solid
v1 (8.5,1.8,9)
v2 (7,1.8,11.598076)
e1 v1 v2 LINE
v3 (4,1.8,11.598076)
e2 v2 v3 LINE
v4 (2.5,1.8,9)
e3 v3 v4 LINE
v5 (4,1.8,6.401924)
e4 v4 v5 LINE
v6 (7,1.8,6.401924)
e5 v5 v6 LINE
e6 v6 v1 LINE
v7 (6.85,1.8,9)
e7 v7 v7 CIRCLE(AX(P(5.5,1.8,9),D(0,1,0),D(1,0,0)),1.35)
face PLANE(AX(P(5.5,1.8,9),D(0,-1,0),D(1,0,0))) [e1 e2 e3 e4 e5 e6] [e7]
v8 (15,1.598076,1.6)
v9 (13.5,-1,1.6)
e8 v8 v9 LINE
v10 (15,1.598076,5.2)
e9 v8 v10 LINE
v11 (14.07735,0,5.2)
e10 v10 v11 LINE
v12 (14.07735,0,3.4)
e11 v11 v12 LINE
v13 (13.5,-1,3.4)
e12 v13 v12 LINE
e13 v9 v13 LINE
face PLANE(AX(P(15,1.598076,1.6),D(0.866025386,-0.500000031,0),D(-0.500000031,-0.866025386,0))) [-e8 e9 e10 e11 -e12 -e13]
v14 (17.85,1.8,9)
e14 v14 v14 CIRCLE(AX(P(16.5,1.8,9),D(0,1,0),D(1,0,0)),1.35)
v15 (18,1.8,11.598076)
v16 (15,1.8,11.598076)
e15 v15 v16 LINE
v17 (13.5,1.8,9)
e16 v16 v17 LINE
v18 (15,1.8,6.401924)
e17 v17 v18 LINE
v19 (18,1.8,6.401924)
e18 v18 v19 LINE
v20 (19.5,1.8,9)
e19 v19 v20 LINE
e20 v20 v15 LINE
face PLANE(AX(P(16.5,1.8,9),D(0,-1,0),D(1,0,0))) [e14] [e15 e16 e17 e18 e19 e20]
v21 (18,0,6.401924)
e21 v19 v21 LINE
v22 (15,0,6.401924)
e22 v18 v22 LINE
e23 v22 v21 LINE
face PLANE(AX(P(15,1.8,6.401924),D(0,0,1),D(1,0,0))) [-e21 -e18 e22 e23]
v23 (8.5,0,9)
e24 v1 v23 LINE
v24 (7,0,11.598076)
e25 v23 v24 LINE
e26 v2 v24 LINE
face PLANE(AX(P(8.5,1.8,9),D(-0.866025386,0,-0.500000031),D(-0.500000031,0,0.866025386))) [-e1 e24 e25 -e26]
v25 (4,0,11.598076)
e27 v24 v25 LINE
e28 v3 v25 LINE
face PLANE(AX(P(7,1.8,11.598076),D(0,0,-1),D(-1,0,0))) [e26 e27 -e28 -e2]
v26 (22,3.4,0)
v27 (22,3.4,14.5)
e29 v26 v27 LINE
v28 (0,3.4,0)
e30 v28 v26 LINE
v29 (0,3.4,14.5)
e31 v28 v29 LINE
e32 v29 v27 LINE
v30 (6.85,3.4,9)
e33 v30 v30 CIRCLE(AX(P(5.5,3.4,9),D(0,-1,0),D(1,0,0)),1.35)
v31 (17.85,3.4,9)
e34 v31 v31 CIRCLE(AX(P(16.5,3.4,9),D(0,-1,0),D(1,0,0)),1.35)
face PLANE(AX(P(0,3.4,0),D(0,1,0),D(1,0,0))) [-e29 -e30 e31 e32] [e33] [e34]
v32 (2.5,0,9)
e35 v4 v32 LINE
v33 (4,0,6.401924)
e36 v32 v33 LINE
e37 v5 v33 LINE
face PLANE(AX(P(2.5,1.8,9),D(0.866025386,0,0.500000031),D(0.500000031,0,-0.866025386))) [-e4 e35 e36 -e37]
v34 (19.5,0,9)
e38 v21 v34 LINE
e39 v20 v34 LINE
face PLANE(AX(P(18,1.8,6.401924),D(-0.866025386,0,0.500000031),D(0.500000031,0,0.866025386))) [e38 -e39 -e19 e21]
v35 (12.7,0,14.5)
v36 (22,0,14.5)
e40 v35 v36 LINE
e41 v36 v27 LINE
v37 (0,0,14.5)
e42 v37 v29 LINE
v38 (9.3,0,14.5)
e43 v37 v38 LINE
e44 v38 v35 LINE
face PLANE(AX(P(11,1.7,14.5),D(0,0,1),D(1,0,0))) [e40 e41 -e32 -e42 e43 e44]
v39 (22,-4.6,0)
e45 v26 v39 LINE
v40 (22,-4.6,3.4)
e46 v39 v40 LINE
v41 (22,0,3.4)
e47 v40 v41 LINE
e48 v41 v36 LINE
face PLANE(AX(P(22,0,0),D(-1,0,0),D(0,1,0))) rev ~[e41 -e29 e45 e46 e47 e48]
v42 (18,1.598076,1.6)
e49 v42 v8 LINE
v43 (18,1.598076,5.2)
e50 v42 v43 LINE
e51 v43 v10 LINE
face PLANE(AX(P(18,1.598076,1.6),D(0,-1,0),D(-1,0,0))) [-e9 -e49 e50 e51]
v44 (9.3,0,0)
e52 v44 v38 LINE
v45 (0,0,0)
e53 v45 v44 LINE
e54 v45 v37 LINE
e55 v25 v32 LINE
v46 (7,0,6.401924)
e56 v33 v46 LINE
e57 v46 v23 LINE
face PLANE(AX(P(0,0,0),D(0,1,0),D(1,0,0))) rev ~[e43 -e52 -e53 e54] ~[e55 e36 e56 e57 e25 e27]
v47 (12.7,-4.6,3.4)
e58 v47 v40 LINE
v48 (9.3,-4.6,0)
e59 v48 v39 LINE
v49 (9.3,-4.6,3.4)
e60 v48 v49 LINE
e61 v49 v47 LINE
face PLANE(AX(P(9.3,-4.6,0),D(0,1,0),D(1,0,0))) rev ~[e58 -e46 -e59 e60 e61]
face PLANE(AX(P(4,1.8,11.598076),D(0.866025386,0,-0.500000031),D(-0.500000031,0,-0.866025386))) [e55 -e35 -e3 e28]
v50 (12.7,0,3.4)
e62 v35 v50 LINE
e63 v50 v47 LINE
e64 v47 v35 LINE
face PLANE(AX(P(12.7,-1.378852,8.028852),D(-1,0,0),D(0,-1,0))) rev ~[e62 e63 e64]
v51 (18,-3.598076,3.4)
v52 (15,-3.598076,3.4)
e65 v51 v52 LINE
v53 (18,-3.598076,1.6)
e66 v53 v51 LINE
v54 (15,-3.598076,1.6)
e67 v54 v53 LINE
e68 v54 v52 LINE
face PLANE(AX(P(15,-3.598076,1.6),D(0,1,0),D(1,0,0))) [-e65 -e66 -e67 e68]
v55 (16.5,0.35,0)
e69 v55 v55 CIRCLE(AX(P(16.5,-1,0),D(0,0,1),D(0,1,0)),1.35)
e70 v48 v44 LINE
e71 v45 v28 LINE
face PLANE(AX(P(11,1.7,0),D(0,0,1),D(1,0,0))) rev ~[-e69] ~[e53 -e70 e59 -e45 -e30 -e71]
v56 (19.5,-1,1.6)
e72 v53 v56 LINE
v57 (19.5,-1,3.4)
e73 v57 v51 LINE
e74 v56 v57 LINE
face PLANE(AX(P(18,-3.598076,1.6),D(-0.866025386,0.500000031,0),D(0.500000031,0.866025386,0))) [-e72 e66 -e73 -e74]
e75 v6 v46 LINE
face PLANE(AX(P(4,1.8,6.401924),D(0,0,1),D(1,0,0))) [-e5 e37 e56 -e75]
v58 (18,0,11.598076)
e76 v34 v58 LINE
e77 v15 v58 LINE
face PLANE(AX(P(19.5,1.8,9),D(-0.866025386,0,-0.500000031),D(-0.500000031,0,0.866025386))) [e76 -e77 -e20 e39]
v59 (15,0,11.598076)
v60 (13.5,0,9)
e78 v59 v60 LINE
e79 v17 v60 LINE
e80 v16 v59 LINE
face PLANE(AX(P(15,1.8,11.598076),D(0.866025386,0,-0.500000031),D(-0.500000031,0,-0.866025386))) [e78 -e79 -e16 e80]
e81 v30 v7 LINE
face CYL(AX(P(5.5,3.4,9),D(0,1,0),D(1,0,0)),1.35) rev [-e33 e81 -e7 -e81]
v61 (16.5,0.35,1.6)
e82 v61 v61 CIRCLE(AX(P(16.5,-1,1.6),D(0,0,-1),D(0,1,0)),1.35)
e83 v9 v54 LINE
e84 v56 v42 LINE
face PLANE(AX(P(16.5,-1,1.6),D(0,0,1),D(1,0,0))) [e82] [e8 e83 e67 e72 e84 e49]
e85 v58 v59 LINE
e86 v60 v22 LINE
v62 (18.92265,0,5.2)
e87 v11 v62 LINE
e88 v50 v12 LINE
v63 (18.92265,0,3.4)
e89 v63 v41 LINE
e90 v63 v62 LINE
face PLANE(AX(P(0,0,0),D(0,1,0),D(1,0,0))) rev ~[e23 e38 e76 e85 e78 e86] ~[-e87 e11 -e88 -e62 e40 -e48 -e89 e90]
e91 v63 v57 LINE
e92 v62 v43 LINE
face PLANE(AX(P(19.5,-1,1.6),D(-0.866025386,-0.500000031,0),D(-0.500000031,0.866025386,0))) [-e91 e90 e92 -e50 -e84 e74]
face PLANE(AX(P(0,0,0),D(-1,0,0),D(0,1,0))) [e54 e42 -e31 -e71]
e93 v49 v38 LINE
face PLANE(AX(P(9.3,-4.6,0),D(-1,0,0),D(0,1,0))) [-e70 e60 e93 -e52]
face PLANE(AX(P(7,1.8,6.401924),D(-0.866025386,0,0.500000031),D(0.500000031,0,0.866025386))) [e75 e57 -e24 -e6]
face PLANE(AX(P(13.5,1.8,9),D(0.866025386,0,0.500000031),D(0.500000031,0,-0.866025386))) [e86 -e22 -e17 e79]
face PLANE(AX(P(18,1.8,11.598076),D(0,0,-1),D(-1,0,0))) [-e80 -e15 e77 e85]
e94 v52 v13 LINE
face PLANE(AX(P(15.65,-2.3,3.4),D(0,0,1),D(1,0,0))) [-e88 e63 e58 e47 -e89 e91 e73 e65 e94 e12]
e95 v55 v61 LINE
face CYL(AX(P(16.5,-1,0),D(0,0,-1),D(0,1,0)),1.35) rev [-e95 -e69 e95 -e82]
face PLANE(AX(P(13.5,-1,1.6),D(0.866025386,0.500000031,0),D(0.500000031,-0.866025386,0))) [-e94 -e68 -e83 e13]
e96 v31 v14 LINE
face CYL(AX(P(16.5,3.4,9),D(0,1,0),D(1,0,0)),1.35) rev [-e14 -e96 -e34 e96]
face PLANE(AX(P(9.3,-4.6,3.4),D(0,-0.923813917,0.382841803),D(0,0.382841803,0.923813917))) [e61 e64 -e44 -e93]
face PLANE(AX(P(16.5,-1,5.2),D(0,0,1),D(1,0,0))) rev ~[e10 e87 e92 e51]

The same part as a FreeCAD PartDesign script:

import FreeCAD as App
import Part
import Sketcher
from FreeCAD import Vector
Q = App.Units.Quantity

doc = App.newDocument("Part")
body = doc.addObject("PartDesign::Body", "Body")

# Sketch on XY plane
sketch1 = body.newObject("Sketcher::SketchObject", "Sketch")
sketch1.AttachmentSupport = (doc.getObject("XY_Plane"), [""])
sketch1.MapMode = "FlatFace"
sketch1.AttachmentOffset = App.Placement(Vector(0, 0, 1.6), App.Rotation())
sketch1.addGeometry(Part.LineSegment(Vector(19.5, -1, 0), Vector(18, 1.6, 0)), False)
sketch1.addGeometry(Part.LineSegment(Vector(18, 1.6, 0), Vector(15, 1.6, 0)), False)
sketch1.addGeometry(Part.LineSegment(Vector(15, 1.6, 0), Vector(13.5, -1, 0)), False)
sketch1.addGeometry(Part.LineSegment(Vector(13.5, -1, 0), Vector(15, -3.6, 0)), False)
sketch1.addGeometry(Part.LineSegment(Vector(15, -3.6, 0), Vector(18, -3.6, 0)), False)
sketch1.addGeometry(Part.LineSegment(Vector(18, -3.6, 0), Vector(19.5, -1, 0)), False)
sketch1.addConstraint(Sketcher.Constraint("Coincident", 0, 2, 1, 1))
sketch1.addConstraint(Sketcher.Constraint("Coincident", 1, 2, 2, 1))
sketch1.addConstraint(Sketcher.Constraint("Coincident", 2, 2, 3, 1))
sketch1.addConstraint(Sketcher.Constraint("Coincident", 3, 2, 4, 1))
sketch1.addConstraint(Sketcher.Constraint("Coincident", 4, 2, 5, 1))
sketch1.addConstraint(Sketcher.Constraint("Coincident", 5, 2, 0, 1))
sketch1.addConstraint(Sketcher.Constraint("Horizontal", 1))
sketch1.addConstraint(Sketcher.Constraint("Horizontal", 4))
sketch1.addConstraint(Sketcher.Constraint("Parallel", 0, 3))
sketch1.addConstraint(Sketcher.Constraint("Parallel", 2, 5))
sketch1.addConstraint(Sketcher.Constraint("Horizontal", 2, 2, 5, 2))
sketch1.addConstraint(Sketcher.Constraint("Vertical", 1, 2, 3, 2))
sketch1.addConstraint(Sketcher.Constraint("Vertical", 0, 2, 4, 2))
sketch1.addConstraint(Sketcher.Constraint("DistanceX", 1, 2, 1, 1, 3.0))
sketch1.addConstraint(Sketcher.Constraint("Angle", 0, Q("120.000002 deg")))
sketch1.addConstraint(Sketcher.Constraint("Distance", 0, 3.0))
sketch1.addConstraint(Sketcher.Constraint("DistanceX", -1, 1, 0, 2, 18.0))
sketch1.addConstraint(Sketcher.Constraint("DistanceY", 2, 2, -1, 1, 1.0))
pad1 = body.newObject("PartDesign::Pad", "Pad")
pad1.Profile = sketch1
pad1.Length = 3.6
body2 = doc.addObject("PartDesign::Body", "Body001")

# Sketch on XY plane
sketch2 = body2.newObject("Sketcher::SketchObject", "Sketch001")
sketch2.AttachmentSupport = (doc.getObject("XY_Plane001"), [""])
sketch2.MapMode = "FlatFace"
sketch2.addGeometry(Part.Circle(Vector(16.5, -1, 0), Vector(0, 0, 1), 1.4), False)
sketch2.addConstraint(Sketcher.Constraint("Diameter", 0, 2.7))
sketch2.addConstraint(Sketcher.Constraint("DistanceY", 0, 3, -1, 1, 1.0))
sketch2.addConstraint(Sketcher.Constraint("DistanceX", -1, 1, 0, 3, 16.5))
pad2 = body2.newObject("PartDesign::Pad", "Pad001")
pad2.Profile = sketch2
pad2.Length = 3.4
doc.recompute()

boolean = body2.newObject("PartDesign::Boolean", "Boolean")
boolean.Type = "Fuse"
boolean.addObjects([body])
body3 = doc.addObject("PartDesign::Body", "Body002")

# Sketch on XZ plane
sketch3 = body3.newObject("Sketcher::SketchObject", "Sketch002")
sketch3.AttachmentSupport = (doc.getObject("XZ_Plane002"), [""])
sketch3.MapMode = "FlatFace"
sketch3.AttachmentOffset = App.Placement(Vector(0, 0, -1.8), App.Rotation())
sketch3.addGeometry(Part.LineSegment(Vector(19.5, 9, 0), Vector(18, 11.6, 0)), False)
sketch3.addGeometry(Part.LineSegment(Vector(18, 11.6, 0), Vector(15, 11.6, 0)), False)
sketch3.addGeometry(Part.LineSegment(Vector(15, 11.6, 0), Vector(13.5, 9, 0)), False)
sketch3.addGeometry(Part.LineSegment(Vector(13.5, 9, 0), Vector(15, 6.4, 0)), False)
sketch3.addGeometry(Part.LineSegment(Vector(15, 6.4, 0), Vector(18, 6.4, 0)), False)
sketch3.addGeometry(Part.LineSegment(Vector(18, 6.4, 0), Vector(19.5, 9, 0)), False)
sketch3.addConstraint(Sketcher.Constraint("Coincident", 0, 2, 1, 1))
sketch3.addConstraint(Sketcher.Constraint("Coincident", 1, 2, 2, 1))
sketch3.addConstraint(Sketcher.Constraint("Coincident", 2, 2, 3, 1))
sketch3.addConstraint(Sketcher.Constraint("Coincident", 3, 2, 4, 1))
sketch3.addConstraint(Sketcher.Constraint("Coincident", 4, 2, 5, 1))
sketch3.addConstraint(Sketcher.Constraint("Coincident", 5, 2, 0, 1))
sketch3.addConstraint(Sketcher.Constraint("Horizontal", 1))
sketch3.addConstraint(Sketcher.Constraint("Horizontal", 4))
sketch3.addConstraint(Sketcher.Constraint("Parallel", 0, 3))
sketch3.addConstraint(Sketcher.Constraint("Parallel", 2, 5))
sketch3.addConstraint(Sketcher.Constraint("Horizontal", 2, 2, 5, 2))
sketch3.addConstraint(Sketcher.Constraint("Vertical", 1, 2, 3, 2))
sketch3.addConstraint(Sketcher.Constraint("Vertical", 0, 2, 4, 2))
sketch3.addConstraint(Sketcher.Constraint("DistanceX", 1, 2, 1, 1, 3.0))
sketch3.addConstraint(Sketcher.Constraint("Angle", 0, Q("120.000002 deg")))
sketch3.addConstraint(Sketcher.Constraint("Distance", 0, 3.0))
sketch3.addConstraint(Sketcher.Constraint("DistanceX", -1, 1, 0, 2, 18.0))
sketch3.addConstraint(Sketcher.Constraint("DistanceY", -1, 1, 2, 2, 9.0))
pad3 = body3.newObject("PartDesign::Pad", "Pad002")
pad3.Profile = sketch3
pad3.Length = 1.8
body4 = doc.addObject("PartDesign::Body", "Body003")

# Sketch on XZ plane
sketch4 = body4.newObject("Sketcher::SketchObject", "Sketch003")
sketch4.AttachmentSupport = (doc.getObject("XZ_Plane003"), [""])
sketch4.MapMode = "FlatFace"
sketch4.AttachmentOffset = App.Placement(Vector(0, 0, -3.4), App.Rotation())
sketch4.addGeometry(Part.Circle(Vector(16.5, 9, 0), Vector(0, 0, 1), 1.4), False)
sketch4.addConstraint(Sketcher.Constraint("Diameter", 0, 2.7))
sketch4.addConstraint(Sketcher.Constraint("DistanceY", -1, 1, 0, 3, 9.0))
sketch4.addConstraint(Sketcher.Constraint("DistanceX", -1, 1, 0, 3, 16.5))
pad4 = body4.newObject("PartDesign::Pad", "Pad003")
pad4.Profile = sketch4
pad4.Length = 3.4
doc.recompute()

boolean2 = body4.newObject("PartDesign::Boolean", "Boolean001")
boolean2.Type = "Fuse"
boolean2.addObjects([body3])
body5 = doc.addObject("PartDesign::Body", "Body004")

# Sketch on XZ plane
sketch5 = body5.newObject("Sketcher::SketchObject", "Sketch004")
sketch5.AttachmentSupport = (doc.getObject("XZ_Plane004"), [""])
sketch5.MapMode = "FlatFace"
sketch5.AttachmentOffset = App.Placement(Vector(0, 0, -1.8), App.Rotation())
sketch5.addGeometry(Part.LineSegment(Vector(8.5, 9, 0), Vector(7, 11.6, 0)), False)
sketch5.addGeometry(Part.LineSegment(Vector(7, 11.6, 0), Vector(4, 11.6, 0)), False)
sketch5.addGeometry(Part.LineSegment(Vector(4, 11.6, 0), Vector(2.5, 9, 0)), False)
sketch5.addGeometry(Part.LineSegment(Vector(2.5, 9, 0), Vector(4, 6.4, 0)), False)
sketch5.addGeometry(Part.LineSegment(Vector(4, 6.4, 0), Vector(7, 6.4, 0)), False)
sketch5.addGeometry(Part.LineSegment(Vector(7, 6.4, 0), Vector(8.5, 9, 0)), False)
sketch5.addConstraint(Sketcher.Constraint("Coincident", 0, 2, 1, 1))
sketch5.addConstraint(Sketcher.Constraint("Coincident", 1, 2, 2, 1))
sketch5.addConstraint(Sketcher.Constraint("Coincident", 2, 2, 3, 1))
sketch5.addConstraint(Sketcher.Constraint("Coincident", 3, 2, 4, 1))
sketch5.addConstraint(Sketcher.Constraint("Coincident", 4, 2, 5, 1))
sketch5.addConstraint(Sketcher.Constraint("Coincident", 5, 2, 0, 1))
sketch5.addConstraint(Sketcher.Constraint("Horizontal", 1))
sketch5.addConstraint(Sketcher.Constraint("Horizontal", 4))
sketch5.addConstraint(Sketcher.Constraint("Parallel", 0, 3))
sketch5.addConstraint(Sketcher.Constraint("Parallel", 2, 5))
sketch5.addConstraint(Sketcher.Constraint("Horizontal", 2, 2, 5, 2))
sketch5.addConstraint(Sketcher.Constraint("Vertical", 1, 2, 3, 2))
sketch5.addConstraint(Sketcher.Constraint("Vertical", 0, 2, 4, 2))
sketch5.addConstraint(Sketcher.Constraint("DistanceX", 1, 2, 1, 1, 3.0))
sketch5.addConstraint(Sketcher.Constraint("Angle", 0, Q("120.000002 deg")))
sketch5.addConstraint(Sketcher.Constraint("Distance", 0, 3.0))
sketch5.addConstraint(Sketcher.Constraint("DistanceX", -1, 1, 0, 2, 7.0))
sketch5.addConstraint(Sketcher.Constraint("DistanceY", -1, 1, 2, 2, 9.0))
pad5 = body5.newObject("PartDesign::Pad", "Pad004")
pad5.Profile = sketch5
pad5.Length = 1.8
body6 = doc.addObject("PartDesign::Body", "Body005")

# Sketch on XZ plane
sketch6 = body6.newObject("Sketcher::SketchObject", "Sketch005")
sketch6.AttachmentSupport = (doc.getObject("XZ_Plane005"), [""])
sketch6.MapMode = "FlatFace"
sketch6.AttachmentOffset = App.Placement(Vector(0, 0, -3.4), App.Rotation())
sketch6.addGeometry(Part.Circle(Vector(5.5, 9, 0), Vector(0, 0, 1), 1.4), False)
sketch6.addConstraint(Sketcher.Constraint("Diameter", 0, 2.7))
sketch6.addConstraint(Sketcher.Constraint("DistanceY", -1, 1, 0, 3, 9.0))
sketch6.addConstraint(Sketcher.Constraint("DistanceX", -1, 1, 0, 3, 5.5))
pad6 = body6.newObject("PartDesign::Pad", "Pad005")
pad6.Profile = sketch6
pad6.Length = 3.4
doc.recompute()

boolean3 = body6.newObject("PartDesign::Boolean", "Boolean002")
boolean3.Type = "Fuse"
boolean3.addObjects([body5])
body7 = doc.addObject("PartDesign::Body", "Body006")

# Sketch on XY plane
sketch7 = body7.newObject("Sketcher::SketchObject", "Sketch006")
sketch7.AttachmentSupport = (doc.getObject("XY_Plane006"), [""])
sketch7.MapMode = "FlatFace"
sketch7.addGeometry(Part.LineSegment(Vector(0, 3.4, 0), Vector(0, 0, 0)), False)
sketch7.addGeometry(Part.LineSegment(Vector(0, 0, 0), Vector(22, 0, 0)), False)
sketch7.addGeometry(Part.LineSegment(Vector(22, 0, 0), Vector(22, 3.4, 0)), False)
sketch7.addGeometry(Part.LineSegment(Vector(22, 3.4, 0), Vector(0, 3.4, 0)), False)
sketch7.addConstraint(Sketcher.Constraint("Coincident", 0, 2, 1, 1))
sketch7.addConstraint(Sketcher.Constraint("Coincident", 1, 2, 2, 1))
sketch7.addConstraint(Sketcher.Constraint("Coincident", 2, 2, 3, 1))
sketch7.addConstraint(Sketcher.Constraint("Coincident", 3, 2, 0, 1))
sketch7.addConstraint(Sketcher.Constraint("Vertical", 0))
sketch7.addConstraint(Sketcher.Constraint("Horizontal", 1))
sketch7.addConstraint(Sketcher.Constraint("Vertical", 2))
sketch7.addConstraint(Sketcher.Constraint("Horizontal", 3))
sketch7.addConstraint(Sketcher.Constraint("Coincident", 0, 2, -1, 1))
sketch7.addConstraint(Sketcher.Constraint("DistanceX", 1, 1, 1, 2, 22.0))
sketch7.addConstraint(Sketcher.Constraint("DistanceY", 0, 2, 0, 1, 3.4))
pad7 = body7.newObject("PartDesign::Pad", "Pad006")
pad7.Profile = sketch7
pad7.Length = 14.5
doc.recompute()

boolean4 = body7.newObject("PartDesign::Boolean", "Boolean003")
boolean4.Type = "Cut"
boolean4.addObjects([body6])
doc.recompute()

boolean5 = body7.newObject("PartDesign::Boolean", "Boolean004")
boolean5.Type = "Cut"
boolean5.addObjects([body4])
body8 = doc.addObject("PartDesign::Body", "Body007")

# Sketch on XY plane
sketch8 = body8.newObject("Sketcher::SketchObject", "Sketch007")
sketch8.AttachmentSupport = (doc.getObject("XY_Plane007"), [""])
sketch8.MapMode = "FlatFace"
sketch8.addGeometry(Part.LineSegment(Vector(9.3, 0, 0), Vector(9.3, -4.6, 0)), False)
sketch8.addGeometry(Part.LineSegment(Vector(9.3, -4.6, 0), Vector(22, -4.6, 0)), False)
sketch8.addGeometry(Part.LineSegment(Vector(22, -4.6, 0), Vector(22, 0, 0)), False)
sketch8.addGeometry(Part.LineSegment(Vector(22, 0, 0), Vector(9.3, 0, 0)), False)
sketch8.addConstraint(Sketcher.Constraint("Coincident", 0, 2, 1, 1))
sketch8.addConstraint(Sketcher.Constraint("Coincident", 1, 2, 2, 1))
sketch8.addConstraint(Sketcher.Constraint("Coincident", 2, 2, 3, 1))
sketch8.addConstraint(Sketcher.Constraint("Coincident", 3, 2, 0, 1))
sketch8.addConstraint(Sketcher.Constraint("Vertical", 0))
sketch8.addConstraint(Sketcher.Constraint("Horizontal", 1))
sketch8.addConstraint(Sketcher.Constraint("Vertical", 2))
sketch8.addConstraint(Sketcher.Constraint("Horizontal", 3))
sketch8.addConstraint(Sketcher.Constraint("PointOnObject", 2, 2, -1))
sketch8.addConstraint(Sketcher.Constraint("DistanceX", 1, 1, 1, 2, 12.7))
sketch8.addConstraint(Sketcher.Constraint("DistanceY", 0, 2, 0, 1, 4.6))
sketch8.addConstraint(Sketcher.Constraint("DistanceX", -1, 1, 1, 2, 22.0))
pad8 = body8.newObject("PartDesign::Pad", "Pad007")
pad8.Profile = sketch8
pad8.Length = 3.4
doc.recompute()

boolean6 = body8.newObject("PartDesign::Boolean", "Boolean005")
boolean6.Type = "Fuse"
boolean6.addObjects([body7])
doc.recompute()

boolean7 = body8.newObject("PartDesign::Boolean", "Boolean006")
boolean7.Type = "Cut"
boolean7.addObjects([body2])
body9 = doc.addObject("PartDesign::Body", "Body008")

# Sketch on YZ plane
sketch9 = body9.newObject("Sketcher::SketchObject", "Sketch008")
sketch9.AttachmentSupport = (doc.getObject("YZ_Plane008"), [""])
sketch9.MapMode = "FlatFace"
sketch9.addGeometry(Part.LineSegment(Vector(0, 3.4, 0), Vector(0, 14.5, 0)), False)
sketch9.addGeometry(Part.LineSegment(Vector(0, 14.5, 0), Vector(-4.6, 3.4, 0)), False)
sketch9.addGeometry(Part.LineSegment(Vector(-4.6, 3.4, 0), Vector(0, 3.4, 0)), False)
sketch9.addConstraint(Sketcher.Constraint("Coincident", 0, 2, 1, 1))
sketch9.addConstraint(Sketcher.Constraint("Coincident", 1, 2, 2, 1))
sketch9.addConstraint(Sketcher.Constraint("Coincident", 2, 2, 0, 1))
sketch9.addConstraint(Sketcher.Constraint("Vertical", 0))
sketch9.addConstraint(Sketcher.Constraint("Horizontal", 2))
sketch9.addConstraint(Sketcher.Constraint("PointOnObject", 0, 2, -2))
sketch9.addConstraint(Sketcher.Constraint("DistanceX", 2, 1, 2, 2, 4.6))
sketch9.addConstraint(Sketcher.Constraint("DistanceY", 0, 1, 0, 2, 11.1))
sketch9.addConstraint(Sketcher.Constraint("DistanceY", -1, 1, 0, 2, 14.5))
pad9 = body9.newObject("PartDesign::Pad", "Pad008")
pad9.Profile = sketch9
pad9.Length = 3.4
body10 = doc.addObject("PartDesign::Body", "Body009")
doc.recompute()

body9.Placement = App.Placement(Vector(9.3, 0, 0), App.Rotation(Vector(0, 0, 1), 0))
boolean8 = body10.newObject("PartDesign::Boolean", "Boolean007")
boolean8.Type = "Fuse"
boolean8.addObjects([body9])
doc.recompute()

boolean9 = body10.newObject("PartDesign::Boolean", "Boolean008")
boolean9.Type = "Fuse"
boolean9.addObjects([body8])

doc.recompute()
